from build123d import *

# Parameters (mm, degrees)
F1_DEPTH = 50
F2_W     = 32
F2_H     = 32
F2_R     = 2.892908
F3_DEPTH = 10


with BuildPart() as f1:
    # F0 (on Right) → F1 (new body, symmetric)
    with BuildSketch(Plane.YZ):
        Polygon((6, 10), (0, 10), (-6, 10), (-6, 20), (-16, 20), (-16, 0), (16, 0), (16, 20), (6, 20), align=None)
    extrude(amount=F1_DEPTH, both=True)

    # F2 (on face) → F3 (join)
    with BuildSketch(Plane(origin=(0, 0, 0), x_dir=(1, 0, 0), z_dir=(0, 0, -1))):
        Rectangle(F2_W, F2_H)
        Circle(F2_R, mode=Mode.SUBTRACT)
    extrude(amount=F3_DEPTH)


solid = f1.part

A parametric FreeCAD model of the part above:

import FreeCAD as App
import Part
import Sketcher
from FreeCAD import Vector

doc = App.newDocument("Part")
body = doc.addObject("PartDesign::Body", "Body")

# Sketch on YZ plane
sketch1 = body.newObject("Sketcher::SketchObject", "Sketch")
sketch1.AttachmentSupport = (doc.getObject("YZ_Plane"), [""])
sketch1.MapMode = "FlatFace"
sketch1.addGeometry([
    Part.LineSegment(Vector(6, 10, 0), Vector(-6, 10, 0)),  # 0
    Part.LineSegment(Vector(-6, 10, 0), Vector(-6, 20, 0)),  # 1
    Part.LineSegment(Vector(-6, 20, 0), Vector(-16, 20, 0)),  # 2
    Part.LineSegment(Vector(-16, 20, 0), Vector(-16, 0, 0)),  # 3
    Part.LineSegment(Vector(-16, 0, 0), Vector(16, 0, 0)),  # 4
    Part.LineSegment(Vector(16, 0, 0), Vector(16, 20, 0)),  # 5
    Part.LineSegment(Vector(16, 20, 0), Vector(6, 20, 0)),  # 6
    Part.LineSegment(Vector(6, 20, 0), Vector(6, 10, 0)),  # 7
], False)
sketch1.addConstraint([
    Sketcher.Constraint("Coincident", 0, 2, 1, 1),
    Sketcher.Constraint("Coincident", 1, 2, 2, 1),
    Sketcher.Constraint("Coincident", 2, 2, 3, 1),
    Sketcher.Constraint("Coincident", 3, 2, 4, 1),
    Sketcher.Constraint("Coincident", 4, 2, 5, 1),
    Sketcher.Constraint("Coincident", 5, 2, 6, 1),
    Sketcher.Constraint("Coincident", 6, 2, 7, 1),
    Sketcher.Constraint("Coincident", 7, 2, 0, 1),
    Sketcher.Constraint("Horizontal", 0),
    Sketcher.Constraint("Vertical", 1),
    Sketcher.Constraint("Horizontal", 2),
    Sketcher.Constraint("Vertical", 3),
    Sketcher.Constraint("Horizontal", 4),
    Sketcher.Constraint("Vertical", 5),
    Sketcher.Constraint("Horizontal", 6),
    Sketcher.Constraint("Vertical", 7),
    Sketcher.Constraint("Symmetric", 3, 2, 4, 2, -1, 1),
    Sketcher.Constraint("Symmetric", 1, 2, 6, 2, -2),
    Sketcher.Constraint("Equal", 6, 1),
    Sketcher.Constraint("DistanceX", 0, 2, 0, 1, 12.0),
    Sketcher.Constraint("DistanceX", 2, 2, 2, 1, 10.0),
    Sketcher.Constraint("DistanceY", 3, 2, 3, 1, 20.0),
])
pad1 = body.newObject("PartDesign::Pad", "Pad")
pad1.Profile = sketch1
pad1.Length = 100
pad1.Midplane = True

# Sketch on XY plane
sketch2 = body.newObject("Sketcher::SketchObject", "Sketch001")
sketch2.AttachmentSupport = (doc.getObject("XY_Plane"), [""])
sketch2.MapMode = "FlatFace"
sketch2.addGeometry([
    Part.LineSegment(Vector(-16, -16, 0), Vector(-16, 16, 0)),  # 0
    Part.LineSegment(Vector(-16, 16, 0), Vector(16, 16, 0)),  # 1
    Part.LineSegment(Vector(16, 16, 0), Vector(16, -16, 0)),  # 2
    Part.LineSegment(Vector(16, -16, 0), Vector(-16, -16, 0)),  # 3
    Part.Circle(Vector(0, 0, 0), Vector(0, 0, 1), 2.9),  # 4
], False)
sketch2.addConstraint([
    Sketcher.Constraint("Coincident", 0, 2, 1, 1),
    Sketcher.Constraint("Coincident", 1, 2, 2, 1),
    Sketcher.Constraint("Coincident", 2, 2, 3, 1),
    Sketcher.Constraint("Coincident", 3, 2, 0, 1),
    Sketcher.Constraint("Vertical", 0),
    Sketcher.Constraint("Horizontal", 1),
    Sketcher.Constraint("Vertical", 2),
    Sketcher.Constraint("Horizontal", 3),
    Sketcher.Constraint("Coincident", 4, 3, -1, 1),
    Sketcher.Constraint("Symmetric", 0, 2, 2, 2, -1, 1),
    Sketcher.Constraint("Equal", 3, 0),
    Sketcher.Constraint("DistanceX", 1, 1, 1, 2, 32.0),
    Sketcher.Constraint("Diameter", 4, 5.785816),
])
pad2 = body.newObject("PartDesign::Pad", "Pad001")
pad2.Profile = sketch2
pad2.Length = 10
pad2.Reversed = True

doc.recompute()
